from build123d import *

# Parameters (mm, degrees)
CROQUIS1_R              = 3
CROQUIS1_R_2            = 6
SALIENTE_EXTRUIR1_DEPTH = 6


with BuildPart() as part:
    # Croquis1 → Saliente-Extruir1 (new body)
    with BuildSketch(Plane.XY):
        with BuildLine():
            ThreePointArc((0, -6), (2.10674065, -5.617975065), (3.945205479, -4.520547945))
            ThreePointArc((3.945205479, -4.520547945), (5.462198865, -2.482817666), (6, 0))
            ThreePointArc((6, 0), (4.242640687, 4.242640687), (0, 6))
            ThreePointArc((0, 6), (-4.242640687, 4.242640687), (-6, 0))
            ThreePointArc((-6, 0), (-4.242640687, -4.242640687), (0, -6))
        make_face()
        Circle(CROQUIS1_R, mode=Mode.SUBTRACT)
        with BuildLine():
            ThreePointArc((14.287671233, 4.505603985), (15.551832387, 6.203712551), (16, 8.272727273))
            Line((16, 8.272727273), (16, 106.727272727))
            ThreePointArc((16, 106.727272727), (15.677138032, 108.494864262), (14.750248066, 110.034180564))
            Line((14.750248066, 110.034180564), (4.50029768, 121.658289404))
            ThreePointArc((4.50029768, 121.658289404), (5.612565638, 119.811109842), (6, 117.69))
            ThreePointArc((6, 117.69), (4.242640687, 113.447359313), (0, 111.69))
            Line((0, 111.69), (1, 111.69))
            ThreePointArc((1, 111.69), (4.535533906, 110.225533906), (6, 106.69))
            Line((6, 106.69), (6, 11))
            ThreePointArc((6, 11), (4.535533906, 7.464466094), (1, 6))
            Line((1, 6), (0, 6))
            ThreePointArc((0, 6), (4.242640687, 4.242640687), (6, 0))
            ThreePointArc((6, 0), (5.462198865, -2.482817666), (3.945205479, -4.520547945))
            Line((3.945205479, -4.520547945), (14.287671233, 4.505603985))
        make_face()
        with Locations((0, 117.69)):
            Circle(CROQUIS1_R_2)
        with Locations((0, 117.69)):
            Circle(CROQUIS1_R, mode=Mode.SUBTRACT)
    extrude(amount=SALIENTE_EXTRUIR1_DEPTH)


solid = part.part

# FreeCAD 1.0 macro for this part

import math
import FreeCAD as App
import Part
import Sketcher
from FreeCAD import Vector

doc = App.newDocument("Part")
body = doc.addObject("PartDesign::Body", "Body")

# Sketch on XY plane
sketch1 = body.newObject("Sketcher::SketchObject", "Sketch")
sketch1.AttachmentSupport = (doc.getObject("XY_Plane"), [""])
sketch1.MapMode = "FlatFace"
sketch1.addGeometry(Part.ArcOfCircle(Part.Circle(Vector(0, 0, 0), Vector(0, 0, 1), 6), math.radians(-90), math.radians(-48.88791)), False)
sketch1.addGeometry(Part.LineSegment(Vector(3.945205, -4.520548, 0), Vector(14.287671, 4.505604, 0)), False)
sketch1.addGeometry(Part.ArcOfCircle(Part.Circle(Vector(11, 8.272727, 0), Vector(0, 0, 1), 5), math.radians(-48.88791), math.radians(0)), False)
sketch1.addGeometry(Part.LineSegment(Vector(16, 8.272727, 0), Vector(16, 106.727273, 0)), False)
sketch1.addGeometry(Part.ArcOfCircle(Part.Circle(Vector(11, 106.727273, 0), Vector(0, 0, 1), 5), math.radians(0), math.radians(41.405324)), False)
sketch1.addGeometry(Part.LineSegment(Vector(14.750248, 110.034181, 0), Vector(4.500298, 121.658289, 0)), False)
sketch1.addGeometry(Part.ArcOfCircle(Part.Circle(Vector(0, 117.69, 0), Vector(0, 0, 1), 6), math.radians(41.405324), math.radians(270)), False)
sketch1.addGeometry(Part.LineSegment(Vector(0, 111.69, 0), Vector(1, 111.69, 0)), False)
sketch1.addGeometry(Part.ArcOfCircle(Part.Circle(Vector(1, 106.69, 0), Vector(0, 0, 1), 5), math.radians(0), math.radians(90)), False)
sketch1.addGeometry(Part.LineSegment(Vector(6, 106.69, 0), Vector(6, 11, 0)), False)
sketch1.addGeometry(Part.ArcOfCircle(Part.Circle(Vector(1, 11, 0), Vector(0, 0, 1), 5), math.radians(-90), math.radians(0)), False)
sketch1.addGeometry(Part.LineSegment(Vector(1, 6, 0), Vector(0, 6, 0)), False)
sketch1.addGeometry(Part.ArcOfCircle(Part.Circle(Vector(0, 0, 0), Vector(0, 0, 1), 6), math.radians(90), math.radians(180)), False)
sketch1.addGeometry(Part.ArcOfCircle(Part.Circle(Vector(0, 0, 0), Vector(0, 0, 1), 6), math.radians(180), math.radians(270)), False)
sketch1.addGeometry(Part.Circle(Vector(0, 0, 0), Vector(0, 0, 1), 3), False)
sketch1.addGeometry(Part.Circle(Vector(0, 117.69, 0), Vector(0, 0, 1), 3), False)
sketch1.addConstraint(Sketcher.Constraint("Tangent", 0, 2, 1, 1))
sketch1.addConstraint(Sketcher.Constraint("Tangent", 1, 2, 2, 1))
sketch1.addConstraint(Sketcher.Constraint("Tangent", 2, 2, 3, 1))
sketch1.addConstraint(Sketcher.Constraint("Tangent", 3, 2, 4, 1))
sketch1.addConstraint(Sketcher.Constraint("Tangent", 4, 2, 5, 1))
sketch1.addConstraint(Sketcher.Constraint("Tangent", 5, 2, 6, 1))
sketch1.addConstraint(Sketcher.Constraint("Tangent", 6, 2, 7, 1))
sketch1.addConstraint(Sketcher.Constraint("Tangent", 7, 2, 8, 2))
sketch1.addConstraint(Sketcher.Constraint("Tangent", 8, 1, 9, 1))
sketch1.addConstraint(Sketcher.Constraint("Tangent", 9, 2, 10, 2))
sketch1.addConstraint(Sketcher.Constraint("Tangent", 10, 1, 11, 1))
sketch1.addConstraint(Sketcher.Constraint("Tangent", 11, 2, 12, 1))
sketch1.addConstraint(Sketcher.Constraint("Tangent", 12, 2, 13, 1))
sketch1.addConstraint(Sketcher.Constraint("Tangent", 13, 2, 0, 1))
sketch1.addConstraint(Sketcher.Constraint("Vertical", 3))
sketch1.addConstraint(Sketcher.Constraint("Horizontal", 7))
sketch1.addConstraint(Sketcher.Constraint("Vertical", 9))
sketch1.addConstraint(Sketcher.Constraint("Horizontal", 11))
sketch1.addConstraint(Sketcher.Constraint("Coincident", 0, 3, -1, 1))
sketch1.addConstraint(Sketcher.Constraint("Coincident", 12, 3, -1, 1))
sketch1.addConstraint(Sketcher.Constraint("Coincident", 14, 3, -1, 1))
sketch1.addConstraint(Sketcher.Constraint("Coincident", 15, 3, 6, 3))
sketch1.addConstraint(Sketcher.Constraint("Equal", 2, 4))
sketch1.addConstraint(Sketcher.Constraint("Equal", 0, 6))
sketch1.addConstraint(Sketcher.Constraint("Equal", 4, 8))
sketch1.addConstraint(Sketcher.Constraint("Equal", 8, 10))
sketch1.addConstraint(Sketcher.Constraint("Equal", 14, 15))
sketch1.addConstraint(Sketcher.Constraint("PointOnObject", 6, 3, -2))
sketch1.addConstraint(Sketcher.Constraint("PointOnObject", 12, 2, -1))
sketch1.addConstraint(Sketcher.Constraint("PointOnObject", 13, 2, -2))
sketch1.addConstraint(Sketcher.Constraint("Diameter", 14, 6.0))
sketch1.addConstraint(Sketcher.Constraint("Radius", 0, 6.0))
sketch1.addConstraint(Sketcher.Constraint("Radius", 2, 5.0))
sketch1.addConstraint(Sketcher.Constraint("DistanceX", 7, 1, 7, 2, 1.0))
sketch1.addConstraint(Sketcher.Constraint("DistanceX", -1, 1, 2, 3, 11.0))
sketch1.addConstraint(Sketcher.Constraint("DistanceY", 9, 2, 9, 1, 95.69))
sketch1.addConstraint(Sketcher.Constraint("DistanceY", 3, 1, 3, 2, 98.454545))
sketch1.addConstraint(Sketcher.Constraint("DistanceX", -1, 1, 1, 2, 14.287671))
pad1 = body.newObject("PartDesign::Pad", "Pad")
pad1.Profile = sketch1
pad1.Length = 6

doc.recompute()
